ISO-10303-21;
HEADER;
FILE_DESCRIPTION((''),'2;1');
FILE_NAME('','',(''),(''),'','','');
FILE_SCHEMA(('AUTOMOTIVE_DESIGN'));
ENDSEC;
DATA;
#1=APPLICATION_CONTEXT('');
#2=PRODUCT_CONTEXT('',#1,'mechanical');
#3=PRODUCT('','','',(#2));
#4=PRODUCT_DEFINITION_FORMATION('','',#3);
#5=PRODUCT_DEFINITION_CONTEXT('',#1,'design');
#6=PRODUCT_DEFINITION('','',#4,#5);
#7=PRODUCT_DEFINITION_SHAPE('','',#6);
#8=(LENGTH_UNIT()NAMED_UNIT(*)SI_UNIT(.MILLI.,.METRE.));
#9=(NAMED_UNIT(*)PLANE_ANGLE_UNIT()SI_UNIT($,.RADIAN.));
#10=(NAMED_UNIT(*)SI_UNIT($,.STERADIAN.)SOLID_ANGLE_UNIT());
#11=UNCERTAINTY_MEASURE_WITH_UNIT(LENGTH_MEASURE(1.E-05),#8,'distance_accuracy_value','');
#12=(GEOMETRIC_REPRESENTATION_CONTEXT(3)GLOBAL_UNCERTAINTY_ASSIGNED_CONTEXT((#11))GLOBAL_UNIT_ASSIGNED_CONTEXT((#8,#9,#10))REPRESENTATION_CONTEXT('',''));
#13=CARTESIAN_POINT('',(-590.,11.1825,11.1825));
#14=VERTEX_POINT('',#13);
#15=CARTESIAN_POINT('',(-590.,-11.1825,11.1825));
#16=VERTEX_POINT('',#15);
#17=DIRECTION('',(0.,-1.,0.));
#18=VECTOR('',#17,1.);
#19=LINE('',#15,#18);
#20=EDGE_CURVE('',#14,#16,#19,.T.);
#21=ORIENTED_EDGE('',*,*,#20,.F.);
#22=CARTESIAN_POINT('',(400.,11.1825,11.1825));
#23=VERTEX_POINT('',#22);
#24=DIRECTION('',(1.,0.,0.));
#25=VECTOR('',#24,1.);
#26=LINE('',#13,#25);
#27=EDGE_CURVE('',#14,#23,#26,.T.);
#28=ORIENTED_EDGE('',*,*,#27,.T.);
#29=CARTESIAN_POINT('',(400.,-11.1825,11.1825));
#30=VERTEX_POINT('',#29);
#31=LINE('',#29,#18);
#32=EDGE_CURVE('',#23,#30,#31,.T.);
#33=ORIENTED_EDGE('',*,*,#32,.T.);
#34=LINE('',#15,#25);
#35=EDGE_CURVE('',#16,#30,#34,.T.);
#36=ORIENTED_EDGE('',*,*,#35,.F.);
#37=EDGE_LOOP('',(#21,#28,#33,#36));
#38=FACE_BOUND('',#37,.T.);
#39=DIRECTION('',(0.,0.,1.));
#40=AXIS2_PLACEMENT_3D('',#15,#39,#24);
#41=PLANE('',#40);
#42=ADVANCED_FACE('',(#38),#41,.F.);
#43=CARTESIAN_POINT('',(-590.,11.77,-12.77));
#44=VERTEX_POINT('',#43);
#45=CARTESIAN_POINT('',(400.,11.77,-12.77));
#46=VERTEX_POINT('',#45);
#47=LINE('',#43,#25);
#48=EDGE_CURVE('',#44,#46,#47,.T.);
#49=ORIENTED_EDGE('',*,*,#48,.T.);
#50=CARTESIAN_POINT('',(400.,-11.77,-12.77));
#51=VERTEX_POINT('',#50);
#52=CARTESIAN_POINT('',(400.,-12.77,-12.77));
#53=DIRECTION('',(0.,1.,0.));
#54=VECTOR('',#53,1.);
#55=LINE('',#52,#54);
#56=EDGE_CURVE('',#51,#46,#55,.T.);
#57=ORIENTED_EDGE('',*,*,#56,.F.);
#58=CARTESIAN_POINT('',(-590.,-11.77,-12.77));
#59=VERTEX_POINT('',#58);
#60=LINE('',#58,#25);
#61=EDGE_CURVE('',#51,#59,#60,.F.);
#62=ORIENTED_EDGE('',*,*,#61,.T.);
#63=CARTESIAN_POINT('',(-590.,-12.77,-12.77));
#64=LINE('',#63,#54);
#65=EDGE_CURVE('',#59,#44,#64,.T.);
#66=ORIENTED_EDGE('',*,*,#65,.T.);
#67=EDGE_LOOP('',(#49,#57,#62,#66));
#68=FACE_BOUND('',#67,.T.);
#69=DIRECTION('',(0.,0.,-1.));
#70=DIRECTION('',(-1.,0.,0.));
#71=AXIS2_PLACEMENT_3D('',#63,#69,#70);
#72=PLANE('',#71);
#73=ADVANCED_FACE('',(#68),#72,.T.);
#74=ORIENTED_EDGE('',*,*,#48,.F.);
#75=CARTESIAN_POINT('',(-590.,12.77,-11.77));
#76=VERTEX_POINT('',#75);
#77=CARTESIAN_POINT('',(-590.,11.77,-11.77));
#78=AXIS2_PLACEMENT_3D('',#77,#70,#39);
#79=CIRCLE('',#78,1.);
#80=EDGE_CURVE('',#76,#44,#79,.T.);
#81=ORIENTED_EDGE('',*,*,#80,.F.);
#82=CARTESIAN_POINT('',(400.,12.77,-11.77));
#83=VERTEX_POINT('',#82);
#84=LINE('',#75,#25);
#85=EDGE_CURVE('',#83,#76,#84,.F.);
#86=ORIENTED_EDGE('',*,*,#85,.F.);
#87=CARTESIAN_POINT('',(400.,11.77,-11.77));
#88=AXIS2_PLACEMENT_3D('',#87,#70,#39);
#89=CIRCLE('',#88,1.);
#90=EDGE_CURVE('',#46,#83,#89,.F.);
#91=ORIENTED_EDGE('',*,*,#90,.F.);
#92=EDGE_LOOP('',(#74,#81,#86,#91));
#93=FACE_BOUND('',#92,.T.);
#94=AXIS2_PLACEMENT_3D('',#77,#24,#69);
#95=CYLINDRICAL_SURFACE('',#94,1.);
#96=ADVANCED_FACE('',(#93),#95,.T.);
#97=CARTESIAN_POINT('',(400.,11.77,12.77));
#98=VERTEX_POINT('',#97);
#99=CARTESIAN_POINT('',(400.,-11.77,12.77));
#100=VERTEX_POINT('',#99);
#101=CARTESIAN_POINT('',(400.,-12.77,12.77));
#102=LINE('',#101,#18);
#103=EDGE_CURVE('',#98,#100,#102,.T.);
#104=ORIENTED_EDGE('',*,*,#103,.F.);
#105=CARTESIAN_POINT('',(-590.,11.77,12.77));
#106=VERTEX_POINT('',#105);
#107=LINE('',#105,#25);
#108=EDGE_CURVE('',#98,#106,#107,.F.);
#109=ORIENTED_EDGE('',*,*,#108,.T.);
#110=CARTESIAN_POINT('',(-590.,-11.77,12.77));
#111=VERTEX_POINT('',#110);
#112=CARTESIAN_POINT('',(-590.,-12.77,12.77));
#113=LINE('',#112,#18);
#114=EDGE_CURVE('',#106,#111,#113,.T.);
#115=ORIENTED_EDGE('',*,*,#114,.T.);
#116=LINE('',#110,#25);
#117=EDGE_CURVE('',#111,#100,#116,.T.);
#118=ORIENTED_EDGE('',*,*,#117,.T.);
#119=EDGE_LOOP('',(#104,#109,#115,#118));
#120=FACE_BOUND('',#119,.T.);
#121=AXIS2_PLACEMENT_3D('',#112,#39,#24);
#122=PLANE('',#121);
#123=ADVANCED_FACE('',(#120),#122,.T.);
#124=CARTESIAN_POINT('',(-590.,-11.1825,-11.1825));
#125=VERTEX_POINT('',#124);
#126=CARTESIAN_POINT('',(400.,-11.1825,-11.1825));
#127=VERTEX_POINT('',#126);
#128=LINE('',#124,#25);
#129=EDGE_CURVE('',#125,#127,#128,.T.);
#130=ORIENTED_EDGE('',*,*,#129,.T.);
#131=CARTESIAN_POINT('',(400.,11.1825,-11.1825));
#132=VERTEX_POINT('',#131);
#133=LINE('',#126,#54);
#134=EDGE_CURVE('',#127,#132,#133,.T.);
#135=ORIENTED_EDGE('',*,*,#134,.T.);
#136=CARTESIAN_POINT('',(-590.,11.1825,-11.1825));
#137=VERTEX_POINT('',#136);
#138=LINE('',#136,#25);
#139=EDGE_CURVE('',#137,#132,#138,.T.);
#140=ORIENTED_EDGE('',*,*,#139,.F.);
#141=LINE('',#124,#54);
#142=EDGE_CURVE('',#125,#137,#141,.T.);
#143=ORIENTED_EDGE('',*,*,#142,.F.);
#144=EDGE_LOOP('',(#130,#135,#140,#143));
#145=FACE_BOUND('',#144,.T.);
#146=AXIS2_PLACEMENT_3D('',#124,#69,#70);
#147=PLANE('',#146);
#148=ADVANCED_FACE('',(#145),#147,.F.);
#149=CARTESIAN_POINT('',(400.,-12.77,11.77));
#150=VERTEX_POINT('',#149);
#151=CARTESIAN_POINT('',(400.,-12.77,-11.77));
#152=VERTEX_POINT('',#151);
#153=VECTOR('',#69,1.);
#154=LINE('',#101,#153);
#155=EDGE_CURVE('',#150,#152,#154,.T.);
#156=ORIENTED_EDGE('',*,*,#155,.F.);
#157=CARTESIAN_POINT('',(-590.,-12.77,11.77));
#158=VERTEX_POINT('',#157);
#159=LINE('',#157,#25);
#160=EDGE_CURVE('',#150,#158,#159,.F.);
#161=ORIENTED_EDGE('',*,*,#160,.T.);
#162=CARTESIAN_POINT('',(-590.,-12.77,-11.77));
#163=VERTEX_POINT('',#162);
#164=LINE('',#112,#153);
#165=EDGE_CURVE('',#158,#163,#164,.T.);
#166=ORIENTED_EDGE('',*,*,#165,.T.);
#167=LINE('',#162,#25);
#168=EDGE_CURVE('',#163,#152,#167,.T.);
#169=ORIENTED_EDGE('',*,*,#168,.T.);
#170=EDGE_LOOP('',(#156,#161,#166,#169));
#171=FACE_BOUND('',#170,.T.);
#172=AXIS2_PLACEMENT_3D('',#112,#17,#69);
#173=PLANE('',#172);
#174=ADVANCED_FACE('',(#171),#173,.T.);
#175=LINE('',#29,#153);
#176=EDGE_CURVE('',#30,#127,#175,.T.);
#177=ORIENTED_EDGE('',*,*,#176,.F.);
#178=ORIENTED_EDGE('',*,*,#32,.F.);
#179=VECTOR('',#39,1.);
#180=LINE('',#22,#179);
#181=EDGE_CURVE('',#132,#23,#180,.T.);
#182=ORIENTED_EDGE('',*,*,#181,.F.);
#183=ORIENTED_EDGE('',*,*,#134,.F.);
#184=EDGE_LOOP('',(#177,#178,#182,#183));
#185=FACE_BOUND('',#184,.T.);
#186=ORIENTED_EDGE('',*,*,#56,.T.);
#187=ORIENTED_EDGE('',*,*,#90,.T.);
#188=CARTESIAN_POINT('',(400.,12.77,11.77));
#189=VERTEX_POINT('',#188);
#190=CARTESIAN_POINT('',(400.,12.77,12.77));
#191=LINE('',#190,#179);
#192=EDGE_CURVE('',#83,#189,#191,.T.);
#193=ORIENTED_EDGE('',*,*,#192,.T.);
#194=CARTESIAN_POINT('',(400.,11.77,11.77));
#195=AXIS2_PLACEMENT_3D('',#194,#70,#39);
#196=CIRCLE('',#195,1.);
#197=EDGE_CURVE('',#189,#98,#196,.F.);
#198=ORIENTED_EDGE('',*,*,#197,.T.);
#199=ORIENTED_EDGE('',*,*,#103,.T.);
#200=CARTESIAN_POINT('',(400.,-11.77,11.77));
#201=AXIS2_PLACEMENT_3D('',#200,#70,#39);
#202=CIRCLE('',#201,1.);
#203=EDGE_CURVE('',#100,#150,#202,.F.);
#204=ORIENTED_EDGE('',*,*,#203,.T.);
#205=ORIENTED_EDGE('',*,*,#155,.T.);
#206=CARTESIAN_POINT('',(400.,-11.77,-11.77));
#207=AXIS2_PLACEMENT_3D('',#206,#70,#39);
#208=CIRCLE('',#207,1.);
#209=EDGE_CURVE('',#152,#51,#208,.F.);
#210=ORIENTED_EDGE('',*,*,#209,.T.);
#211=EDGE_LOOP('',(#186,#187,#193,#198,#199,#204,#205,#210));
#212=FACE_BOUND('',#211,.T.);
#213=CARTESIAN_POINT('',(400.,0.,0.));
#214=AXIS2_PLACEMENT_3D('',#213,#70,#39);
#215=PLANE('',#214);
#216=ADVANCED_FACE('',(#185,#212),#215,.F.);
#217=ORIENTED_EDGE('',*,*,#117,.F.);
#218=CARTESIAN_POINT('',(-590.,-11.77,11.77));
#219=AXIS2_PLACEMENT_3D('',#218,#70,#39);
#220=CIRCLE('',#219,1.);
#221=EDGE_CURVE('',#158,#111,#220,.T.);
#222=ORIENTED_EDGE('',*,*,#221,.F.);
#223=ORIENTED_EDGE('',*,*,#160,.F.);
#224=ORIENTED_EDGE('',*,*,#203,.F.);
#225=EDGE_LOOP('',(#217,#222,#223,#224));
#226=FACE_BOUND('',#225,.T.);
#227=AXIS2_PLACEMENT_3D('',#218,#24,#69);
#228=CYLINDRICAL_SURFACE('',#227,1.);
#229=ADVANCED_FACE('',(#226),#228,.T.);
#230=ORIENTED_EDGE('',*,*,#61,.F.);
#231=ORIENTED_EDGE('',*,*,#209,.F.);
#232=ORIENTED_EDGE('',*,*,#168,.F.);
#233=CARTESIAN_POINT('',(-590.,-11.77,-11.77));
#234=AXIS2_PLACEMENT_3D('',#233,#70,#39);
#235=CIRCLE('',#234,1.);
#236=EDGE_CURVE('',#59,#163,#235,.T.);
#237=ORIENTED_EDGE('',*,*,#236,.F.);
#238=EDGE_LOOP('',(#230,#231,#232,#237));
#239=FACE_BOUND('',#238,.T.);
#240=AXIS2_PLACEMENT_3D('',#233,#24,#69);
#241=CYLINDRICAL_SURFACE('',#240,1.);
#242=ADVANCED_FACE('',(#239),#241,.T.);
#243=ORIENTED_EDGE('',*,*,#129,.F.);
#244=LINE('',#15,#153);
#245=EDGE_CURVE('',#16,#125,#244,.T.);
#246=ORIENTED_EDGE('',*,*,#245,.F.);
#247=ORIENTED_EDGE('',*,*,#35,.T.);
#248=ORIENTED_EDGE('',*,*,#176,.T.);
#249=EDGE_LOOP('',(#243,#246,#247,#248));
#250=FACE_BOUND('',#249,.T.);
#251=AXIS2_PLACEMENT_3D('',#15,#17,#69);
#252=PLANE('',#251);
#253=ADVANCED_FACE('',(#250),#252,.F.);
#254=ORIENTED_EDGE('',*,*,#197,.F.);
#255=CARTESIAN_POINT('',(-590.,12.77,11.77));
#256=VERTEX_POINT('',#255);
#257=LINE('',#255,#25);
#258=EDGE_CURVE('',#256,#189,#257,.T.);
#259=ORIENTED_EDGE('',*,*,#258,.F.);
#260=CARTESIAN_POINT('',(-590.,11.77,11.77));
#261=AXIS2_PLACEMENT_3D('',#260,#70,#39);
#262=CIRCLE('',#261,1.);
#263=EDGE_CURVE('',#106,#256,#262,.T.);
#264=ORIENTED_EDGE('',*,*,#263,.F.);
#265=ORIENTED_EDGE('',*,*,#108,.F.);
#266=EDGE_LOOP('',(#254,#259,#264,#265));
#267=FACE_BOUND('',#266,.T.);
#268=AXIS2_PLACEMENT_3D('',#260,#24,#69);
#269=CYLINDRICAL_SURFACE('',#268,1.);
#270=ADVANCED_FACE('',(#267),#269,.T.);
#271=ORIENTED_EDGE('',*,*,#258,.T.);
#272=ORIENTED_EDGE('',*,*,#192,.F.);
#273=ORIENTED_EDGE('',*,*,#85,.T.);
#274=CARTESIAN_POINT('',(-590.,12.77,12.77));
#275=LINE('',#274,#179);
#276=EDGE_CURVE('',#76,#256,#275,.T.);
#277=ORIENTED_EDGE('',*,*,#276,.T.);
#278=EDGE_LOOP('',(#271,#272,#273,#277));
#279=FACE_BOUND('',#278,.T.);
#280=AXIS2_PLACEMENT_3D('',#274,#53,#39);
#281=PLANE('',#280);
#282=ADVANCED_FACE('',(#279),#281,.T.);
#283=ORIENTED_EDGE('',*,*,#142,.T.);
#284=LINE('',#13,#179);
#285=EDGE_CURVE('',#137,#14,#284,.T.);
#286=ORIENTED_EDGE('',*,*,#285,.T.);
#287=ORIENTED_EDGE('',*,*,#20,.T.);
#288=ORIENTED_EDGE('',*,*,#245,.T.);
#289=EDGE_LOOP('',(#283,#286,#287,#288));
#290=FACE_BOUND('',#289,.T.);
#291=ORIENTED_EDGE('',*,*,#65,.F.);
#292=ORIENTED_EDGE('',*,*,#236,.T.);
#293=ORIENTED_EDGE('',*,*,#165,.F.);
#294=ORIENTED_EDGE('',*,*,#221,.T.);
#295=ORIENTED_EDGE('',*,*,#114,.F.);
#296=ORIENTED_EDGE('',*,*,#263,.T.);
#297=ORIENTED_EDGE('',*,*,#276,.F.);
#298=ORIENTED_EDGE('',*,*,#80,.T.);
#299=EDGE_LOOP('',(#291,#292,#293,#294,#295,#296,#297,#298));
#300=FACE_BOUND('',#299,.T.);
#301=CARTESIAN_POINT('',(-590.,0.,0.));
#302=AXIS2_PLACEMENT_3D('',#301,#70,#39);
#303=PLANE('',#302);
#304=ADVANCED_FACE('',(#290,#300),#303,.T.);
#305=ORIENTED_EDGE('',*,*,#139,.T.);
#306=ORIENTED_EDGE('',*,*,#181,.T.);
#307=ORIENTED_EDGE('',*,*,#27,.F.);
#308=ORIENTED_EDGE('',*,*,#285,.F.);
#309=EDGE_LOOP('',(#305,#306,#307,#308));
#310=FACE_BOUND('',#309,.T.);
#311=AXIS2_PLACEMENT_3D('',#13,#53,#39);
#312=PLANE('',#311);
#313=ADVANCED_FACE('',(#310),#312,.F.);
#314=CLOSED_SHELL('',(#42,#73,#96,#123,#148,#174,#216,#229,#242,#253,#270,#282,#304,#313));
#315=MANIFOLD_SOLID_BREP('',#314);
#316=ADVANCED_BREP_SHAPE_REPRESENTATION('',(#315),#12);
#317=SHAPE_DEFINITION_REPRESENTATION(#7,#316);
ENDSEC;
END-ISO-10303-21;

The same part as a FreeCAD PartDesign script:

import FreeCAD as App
import Part
import Sketcher

V = App.Vector


def edges_at(feature, points):
    """Names of the edges that pass closest to the given points."""
    edges = feature.Shape.Edges
    near = lambda p: min(range(len(edges)), key=lambda i: edges[i].distToShape(Part.Vertex(*p))[0])
    return sorted({f"Edge{near(p) + 1}" for p in points})

doc = App.newDocument("Part")
params = doc.addObject("Spreadsheet::Sheet", "Params")
for row, (alias, value) in enumerate([
    ("sketch1_width", "25.54 mm"),
    ("pad1_length", "400 mm"),
    ("pad1_length2", "590 mm"),
    ("fillet_radius", "1 mm"),
], start=1):
    params.set(f"A{row}", alias)
    params.set(f"B{row}", "=" + value)
    params.setAlias(f"B{row}", alias)

body = doc.addObject("PartDesign::Body", "Body")

sketch1 = body.newObject("Sketcher::SketchObject", "Sketch")
sketch1.AttachmentSupport = (doc.getObject("YZ_Plane"), [""])
sketch1.MapMode = "FlatFace"
sketch1.addGeometry([
    Part.LineSegment(V(13, 13, 0), V(-13, 13, 0)),
    Part.LineSegment(V(-13, 13, 0), V(-13, -13, 0)),
    Part.LineSegment(V(-13, -13, 0), V(13, -13, 0)),
    Part.LineSegment(V(13, -13, 0), V(13, 13, 0)),
    Part.LineSegment(V(-11, -11, 0), V(-11, 11, 0)),
    Part.LineSegment(V(-11, 11, 0), V(11, 11, 0)),
    Part.LineSegment(V(11, 11, 0), V(11, -11, 0)),
    Part.LineSegment(V(11, -11, 0), V(-11, -11, 0)),
], False)
sketch1.addConstraint([
    Sketcher.Constraint("Coincident", 0, 2, 1, 1),
    Sketcher.Constraint("Coincident", 1, 2, 2, 1),
    Sketcher.Constraint("Coincident", 2, 2, 3, 1),
    Sketcher.Constraint("Coincident", 3, 2, 0, 1),
    Sketcher.Constraint("Coincident", 4, 2, 5, 1),
    Sketcher.Constraint("Coincident", 5, 2, 6, 1),
    Sketcher.Constraint("Coincident", 6, 2, 7, 1),
    Sketcher.Constraint("Coincident", 7, 2, 4, 1),
    Sketcher.Constraint("Horizontal", 0),
    Sketcher.Constraint("Vertical", 1),
    Sketcher.Constraint("Horizontal", 2),
    Sketcher.Constraint("Vertical", 3),
    Sketcher.Constraint("Vertical", 4),
    Sketcher.Constraint("Horizontal", 5),
    Sketcher.Constraint("Vertical", 6),
    Sketcher.Constraint("Horizontal", 7),
    Sketcher.Constraint("Symmetric", 0, 2, 2, 2, -1, 1),
    Sketcher.Constraint("Symmetric", 4, 2, 6, 2, -1, 1),
    Sketcher.Constraint("Equal", 2, 1),
    Sketcher.Constraint("Equal", 7, 4),
    Sketcher.Constraint("DistanceX", 0, 2, 0, 1, 25.54),
    Sketcher.Constraint("DistanceX", 5, 1, 5, 2, 22.365),
])
sketch1.setExpression("Constraints[20]", "Params.sketch1_width")
pad1 = body.newObject("PartDesign::Pad", "Pad")
pad1.Profile = sketch1
pad1.Type = "TwoLengths"
pad1.setExpression("Length", "Params.pad1_length")
pad1.setExpression("Length2", "Params.pad1_length2")
doc.recompute()

fillet = body.newObject("PartDesign::Fillet", "Fillet")
fillet.Base = (pad1, edges_at(pad1, [
    (-95, -12.77, -12.77),
    (-95, -12.77, 12.77),
    (-95, 12.77, 12.77),
    (-95, 12.77, -12.77),
]))
fillet.setExpression("Radius", "Params.fillet_radius")

doc.recompute()
